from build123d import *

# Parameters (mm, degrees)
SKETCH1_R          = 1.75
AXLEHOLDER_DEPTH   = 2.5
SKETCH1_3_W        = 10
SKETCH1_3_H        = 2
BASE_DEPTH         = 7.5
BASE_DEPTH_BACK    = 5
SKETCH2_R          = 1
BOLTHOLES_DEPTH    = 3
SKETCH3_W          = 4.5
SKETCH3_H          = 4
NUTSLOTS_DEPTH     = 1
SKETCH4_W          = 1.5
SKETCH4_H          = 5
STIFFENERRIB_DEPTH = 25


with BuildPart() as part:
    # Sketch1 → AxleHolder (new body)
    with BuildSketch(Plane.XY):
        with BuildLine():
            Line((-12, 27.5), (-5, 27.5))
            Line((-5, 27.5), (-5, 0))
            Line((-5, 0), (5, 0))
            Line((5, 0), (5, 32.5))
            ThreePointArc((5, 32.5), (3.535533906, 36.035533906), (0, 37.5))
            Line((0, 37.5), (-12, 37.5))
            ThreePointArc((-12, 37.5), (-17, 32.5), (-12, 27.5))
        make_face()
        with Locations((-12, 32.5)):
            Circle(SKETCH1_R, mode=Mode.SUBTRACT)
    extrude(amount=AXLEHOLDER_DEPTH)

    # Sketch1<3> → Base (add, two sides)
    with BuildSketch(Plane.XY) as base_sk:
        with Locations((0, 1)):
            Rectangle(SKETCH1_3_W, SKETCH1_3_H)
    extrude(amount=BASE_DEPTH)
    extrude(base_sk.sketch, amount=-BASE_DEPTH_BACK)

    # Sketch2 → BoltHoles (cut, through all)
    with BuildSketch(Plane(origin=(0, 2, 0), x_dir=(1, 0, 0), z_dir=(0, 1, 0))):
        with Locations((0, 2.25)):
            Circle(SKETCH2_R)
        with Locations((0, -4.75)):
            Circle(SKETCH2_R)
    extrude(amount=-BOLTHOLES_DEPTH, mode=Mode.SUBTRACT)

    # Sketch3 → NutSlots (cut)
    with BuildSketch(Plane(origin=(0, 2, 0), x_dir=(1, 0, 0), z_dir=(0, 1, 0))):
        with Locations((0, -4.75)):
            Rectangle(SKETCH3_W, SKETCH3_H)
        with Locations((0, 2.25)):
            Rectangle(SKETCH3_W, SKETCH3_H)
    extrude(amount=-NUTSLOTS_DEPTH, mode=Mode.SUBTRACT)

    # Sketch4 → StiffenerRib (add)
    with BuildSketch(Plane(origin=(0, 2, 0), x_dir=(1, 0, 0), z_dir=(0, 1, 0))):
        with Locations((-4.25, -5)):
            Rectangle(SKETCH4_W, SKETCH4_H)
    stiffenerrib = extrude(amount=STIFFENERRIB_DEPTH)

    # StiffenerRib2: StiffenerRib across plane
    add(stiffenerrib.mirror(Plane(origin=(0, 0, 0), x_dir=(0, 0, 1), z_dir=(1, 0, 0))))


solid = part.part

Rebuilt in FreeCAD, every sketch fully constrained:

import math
import FreeCAD as App
import Part
import Sketcher
from FreeCAD import Vector
Q = App.Units.Quantity

doc = App.newDocument("Part")
body = doc.addObject("PartDesign::Body", "Body")

# Sketch on XY plane
sketch1 = body.newObject("Sketcher::SketchObject", "Sketch")
sketch1.AttachmentSupport = (doc.getObject("XY_Plane"), [""])
sketch1.MapMode = "FlatFace"
sketch1.addGeometry([
    Part.LineSegment(Vector(-12, 27.5, 0), Vector(-5, 27.5, 0)),  # 0
    Part.LineSegment(Vector(-5, 27.5, 0), Vector(-5, 0, 0)),  # 1
    Part.LineSegment(Vector(-5, 0, 0), Vector(5, 0, 0)),  # 2
    Part.LineSegment(Vector(5, 0, 0), Vector(5, 32.5, 0)),  # 3
    Part.ArcOfCircle(Part.Circle(Vector(0, 32.5, 0), Vector(0, 0, 1), 5), math.radians(0), math.radians(90)),  # 4
    Part.LineSegment(Vector(0, 37.5, 0), Vector(-12, 37.5, 0)),  # 5
    Part.ArcOfCircle(Part.Circle(Vector(-12, 32.5, 0), Vector(0, 0, 1), 5), math.radians(90), math.radians(270)),  # 6
    Part.Circle(Vector(-12, 32.5, 0), Vector(0, 0, 1), 1.8),  # 7
], False)
sketch1.addConstraint([
    Sketcher.Constraint("Coincident", 0, 2, 1, 1),
    Sketcher.Constraint("Coincident", 1, 2, 2, 1),
    Sketcher.Constraint("Coincident", 2, 2, 3, 1),
    Sketcher.Constraint("Tangent", 3, 2, 4, 1),
    Sketcher.Constraint("Tangent", 4, 2, 5, 1),
    Sketcher.Constraint("Tangent", 5, 2, 6, 1),
    Sketcher.Constraint("Tangent", 6, 2, 0, 1),
    Sketcher.Constraint("Horizontal", 0),
    Sketcher.Constraint("Vertical", 1),
    Sketcher.Constraint("Horizontal", 2),
    Sketcher.Constraint("Vertical", 3),
    Sketcher.Constraint("Horizontal", 5),
    Sketcher.Constraint("Coincident", 7, 3, 6, 3),
    Sketcher.Constraint("Equal", 4, 6),
    Sketcher.Constraint("Symmetric", 1, 2, 2, 2, -1, 1),
    Sketcher.Constraint("PointOnObject", 4, 3, -2),
    Sketcher.Constraint("Radius", 4, Q("5 mm")),
    Sketcher.Constraint("Diameter", 7, Q("3.5 mm")),
    Sketcher.Constraint("DistanceX", 0, 1, 0, 2, Q("7 mm")),
    Sketcher.Constraint("DistanceY", 1, 2, 1, 1, Q("27.5 mm")),
])
pad1 = body.newObject("PartDesign::Pad", "Pad")
pad1.Profile = sketch1
pad1.Length = 2.5

# Sketch on XY plane
sketch2 = body.newObject("Sketcher::SketchObject", "Sketch001")
sketch2.AttachmentSupport = (doc.getObject("XY_Plane"), [""])
sketch2.MapMode = "FlatFace"
sketch2.addGeometry([
    Part.LineSegment(Vector(-5, 2, 0), Vector(-5, 0, 0)),
    Part.LineSegment(Vector(-5, 0, 0), Vector(5, 0, 0)),
    Part.LineSegment(Vector(5, 0, 0), Vector(5, 2, 0)),
    Part.LineSegment(Vector(5, 2, 0), Vector(-5, 2, 0)),
], False)
sketch2.addConstraint([
    Sketcher.Constraint("Coincident", 0, 2, 1, 1),
    Sketcher.Constraint("Coincident", 1, 2, 2, 1),
    Sketcher.Constraint("Coincident", 2, 2, 3, 1),
    Sketcher.Constraint("Coincident", 3, 2, 0, 1),
    Sketcher.Constraint("Vertical", 0),
    Sketcher.Constraint("Horizontal", 1),
    Sketcher.Constraint("Vertical", 2),
    Sketcher.Constraint("Horizontal", 3),
    Sketcher.Constraint("Symmetric", 0, 2, 1, 2, -1, 1),
    Sketcher.Constraint("DistanceX", 1, 1, 1, 2, Q("10 mm")),
    Sketcher.Constraint("DistanceY", 0, 2, 0, 1, Q("2 mm")),
])
pad2 = body.newObject("PartDesign::Pad", "Pad001")
pad2.Profile = sketch2
pad2.Type = "TwoLengths"
pad2.Length = 7.5
pad2.Length2 = 5

# Sketch on XZ plane
sketch3 = body.newObject("Sketcher::SketchObject", "Sketch002")
sketch3.AttachmentSupport = (doc.getObject("XZ_Plane"), [""])
sketch3.MapMode = "FlatFace"
sketch3.AttachmentOffset = App.Placement(Vector(0, 0, -2), App.Rotation())
sketch3.addGeometry([
    Part.Circle(Vector(0, -2.2, 0), Vector(0, 0, 1), 1),
    Part.Circle(Vector(0, 4.8, 0), Vector(0, 0, 1), 1),
], False)
sketch3.addConstraint([
    Sketcher.Constraint("Equal", 0, 1),
    Sketcher.Constraint("PointOnObject", 0, 3, -2),
    Sketcher.Constraint("PointOnObject", 1, 3, -2),
    Sketcher.Constraint("Diameter", 0, Q("2 mm")),
    Sketcher.Constraint("DistanceY", 0, 3, 1, 3, Q("7 mm")),
    Sketcher.Constraint("DistanceY", 0, 3, -1, 1, Q("2.25 mm")),
])
pocket1 = body.newObject("PartDesign::Pocket", "Pocket")
pocket1.Profile = sketch3
pocket1.Type = "ThroughAll"
pocket1.Reversed = True

# Sketch on XZ plane
sketch4 = body.newObject("Sketcher::SketchObject", "Sketch003")
sketch4.AttachmentSupport = (doc.getObject("XZ_Plane"), [""])
sketch4.MapMode = "FlatFace"
sketch4.AttachmentOffset = App.Placement(Vector(0, 0, -2), App.Rotation())
sketch4.addGeometry([
    Part.LineSegment(Vector(-2.2, 2.8, 0), Vector(-2.2, 6.8, 0)),  # 0
    Part.LineSegment(Vector(-2.2, 6.8, 0), Vector(2.2, 6.8, 0)),  # 1
    Part.LineSegment(Vector(2.2, 6.8, 0), Vector(2.2, 2.8, 0)),  # 2
    Part.LineSegment(Vector(2.2, 2.8, 0), Vector(-2.2, 2.8, 0)),  # 3
    Part.LineSegment(Vector(-2.2, -4.2, 0), Vector(-2.2, -0.2, 0)),  # 4
    Part.LineSegment(Vector(-2.2, -0.2, 0), Vector(2.2, -0.2, 0)),  # 5
    Part.LineSegment(Vector(2.2, -0.2, 0), Vector(2.2, -4.2, 0)),  # 6
    Part.LineSegment(Vector(2.2, -4.2, 0), Vector(-2.2, -4.2, 0)),  # 7
], False)
sketch4.addConstraint([
    Sketcher.Constraint("Coincident", 0, 2, 1, 1),
    Sketcher.Constraint("Coincident", 1, 2, 2, 1),
    Sketcher.Constraint("Coincident", 2, 2, 3, 1),
    Sketcher.Constraint("Coincident", 3, 2, 0, 1),
    Sketcher.Constraint("Coincident", 4, 2, 5, 1),
    Sketcher.Constraint("Coincident", 5, 2, 6, 1),
    Sketcher.Constraint("Coincident", 6, 2, 7, 1),
    Sketcher.Constraint("Coincident", 7, 2, 4, 1),
    Sketcher.Constraint("Vertical", 0),
    Sketcher.Constraint("Horizontal", 1),
    Sketcher.Constraint("Vertical", 2),
    Sketcher.Constraint("Horizontal", 3),
    Sketcher.Constraint("Vertical", 4),
    Sketcher.Constraint("Horizontal", 5),
    Sketcher.Constraint("Vertical", 6),
    Sketcher.Constraint("Horizontal", 7),
    Sketcher.Constraint("Vertical", 3, 2, 4, 2),
    Sketcher.Constraint("Vertical", 2, 2, 5, 2),
    Sketcher.Constraint("Equal", 2, 4),
    Sketcher.Constraint("DistanceY", 0, 1, 0, 2, Q("4 mm")),
    Sketcher.Constraint("DistanceX", 1, 1, 1, 2, Q("4.5 mm")),
    Sketcher.Constraint("DistanceY", 4, 2, 3, 2, Q("3 mm")),
    Sketcher.Constraint("DistanceX", 0, 2, -1, 1, Q("2.25 mm")),
    Sketcher.Constraint("DistanceY", -1, 1, 0, 2, Q("6.75 mm")),
])
pocket2 = body.newObject("PartDesign::Pocket", "Pocket001")
pocket2.Profile = sketch4
pocket2.Length = 1
pocket2.Reversed = True

# Sketch on XZ plane
sketch5 = body.newObject("Sketcher::SketchObject", "Sketch004")
sketch5.AttachmentSupport = (doc.getObject("XZ_Plane"), [""])
sketch5.MapMode = "FlatFace"
sketch5.AttachmentOffset = App.Placement(Vector(0, 0, -2), App.Rotation())
sketch5.addGeometry([
    Part.LineSegment(Vector(-5, 2.5, 0), Vector(-5, 7.5, 0)),
    Part.LineSegment(Vector(-5, 7.5, 0), Vector(-3.5, 7.5, 0)),
    Part.LineSegment(Vector(-3.5, 7.5, 0), Vector(-3.5, 2.5, 0)),
    Part.LineSegment(Vector(-3.5, 2.5, 0), Vector(-5, 2.5, 0)),
], False)
sketch5.addConstraint([
    Sketcher.Constraint("Coincident", 0, 2, 1, 1),
    Sketcher.Constraint("Coincident", 1, 2, 2, 1),
    Sketcher.Constraint("Coincident", 2, 2, 3, 1),
    Sketcher.Constraint("Coincident", 3, 2, 0, 1),
    Sketcher.Constraint("Vertical", 0),
    Sketcher.Constraint("Horizontal", 1),
    Sketcher.Constraint("Vertical", 2),
    Sketcher.Constraint("Horizontal", 3),
    Sketcher.Constraint("DistanceY", 0, 1, 0, 2, Q("5 mm")),
    Sketcher.Constraint("DistanceX", 1, 1, 1, 2, Q("1.5 mm")),
    Sketcher.Constraint("DistanceX", 0, 2, -1, 1, Q("5 mm")),
    Sketcher.Constraint("DistanceY", -1, 1, 0, 2, Q("7.5 mm")),
])
pad3 = body.newObject("PartDesign::Pad", "Pad002")
pad3.Profile = sketch5
pad3.Length = 25
pad3.Reversed = True
doc.recompute()

mirrored = body.newObject("PartDesign::Mirrored", "Mirrored")
mirrored.Originals = [pad3]
mirrored.MirrorPlane = (doc.getObject("YZ_Plane"), [""])
body.Tip = mirrored

doc.recompute()
